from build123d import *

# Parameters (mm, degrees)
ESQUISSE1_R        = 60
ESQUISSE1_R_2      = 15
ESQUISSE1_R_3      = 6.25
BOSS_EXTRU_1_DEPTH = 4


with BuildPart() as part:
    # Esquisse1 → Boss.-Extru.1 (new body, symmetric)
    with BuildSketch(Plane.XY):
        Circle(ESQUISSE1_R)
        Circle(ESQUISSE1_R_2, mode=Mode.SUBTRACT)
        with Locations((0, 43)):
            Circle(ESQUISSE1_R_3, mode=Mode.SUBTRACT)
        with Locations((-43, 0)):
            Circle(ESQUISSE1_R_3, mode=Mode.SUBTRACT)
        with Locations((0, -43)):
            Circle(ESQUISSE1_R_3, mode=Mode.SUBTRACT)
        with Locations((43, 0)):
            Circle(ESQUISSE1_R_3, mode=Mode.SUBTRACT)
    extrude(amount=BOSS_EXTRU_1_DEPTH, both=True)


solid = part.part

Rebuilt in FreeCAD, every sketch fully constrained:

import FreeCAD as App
import Part
import Sketcher

V = App.Vector

doc = App.newDocument("Part")
body = doc.addObject("PartDesign::Body", "Body")

# Sketch on XY plane
sketch1 = doc.addObject("Sketcher::SketchObject", "Sketch")
body.addObject(sketch1)
sketch1.AttachmentSupport = (doc.XY_Plane, [""])
sketch1.MapMode = "FlatFace"
sketch1.addGeometry([
    Part.Circle(V(0, 0, 0), V(0, 0, 1), 60),  # 0
    Part.Circle(V(0, -43, 0), V(0, 0, 1), 6.25),  # 1
    Part.Circle(V(-43, 0, 0), V(0, 0, 1), 6.25),  # 2
    Part.Circle(V(0, 0, 0), V(0, 0, 1), 15),  # 3
    Part.Circle(V(43, 0, 0), V(0, 0, 1), 6.25),  # 4
    Part.Circle(V(0, 43, 0), V(0, 0, 1), 6.25),  # 5
], False)
sketch1.addConstraint([
    Sketcher.Constraint("Coincident", 0, 3, -1, 1),
    Sketcher.Constraint("Coincident", 3, 3, -1, 1),
    Sketcher.Constraint("Equal", 1, 2),
    Sketcher.Constraint("Equal", 2, 4),
    Sketcher.Constraint("Equal", 4, 5),
    Sketcher.Constraint("Symmetric", 2, 3, 4, 3, -1, 1),
    Sketcher.Constraint("Symmetric", 1, 3, 5, 3, -1, 1),
    Sketcher.Constraint("PointOnObject", 1, 3, -2),
    Sketcher.Constraint("PointOnObject", 2, 3, -1),
    Sketcher.Constraint("Diameter", 0, 120.0),
    Sketcher.Constraint("Diameter", 3, 30.0),
    Sketcher.Constraint("Diameter", 1, 12.5),
    Sketcher.Constraint("DistanceY", 1, 3, -1, 1, 43.0),
    Sketcher.Constraint("DistanceX", 2, 3, -1, 1, 43.0),
])
pad1 = doc.addObject("PartDesign::Pad", "Pad")
body.addObject(pad1)
pad1.Profile = sketch1
pad1.Length = 8
pad1.Midplane = True

doc.recompute()
